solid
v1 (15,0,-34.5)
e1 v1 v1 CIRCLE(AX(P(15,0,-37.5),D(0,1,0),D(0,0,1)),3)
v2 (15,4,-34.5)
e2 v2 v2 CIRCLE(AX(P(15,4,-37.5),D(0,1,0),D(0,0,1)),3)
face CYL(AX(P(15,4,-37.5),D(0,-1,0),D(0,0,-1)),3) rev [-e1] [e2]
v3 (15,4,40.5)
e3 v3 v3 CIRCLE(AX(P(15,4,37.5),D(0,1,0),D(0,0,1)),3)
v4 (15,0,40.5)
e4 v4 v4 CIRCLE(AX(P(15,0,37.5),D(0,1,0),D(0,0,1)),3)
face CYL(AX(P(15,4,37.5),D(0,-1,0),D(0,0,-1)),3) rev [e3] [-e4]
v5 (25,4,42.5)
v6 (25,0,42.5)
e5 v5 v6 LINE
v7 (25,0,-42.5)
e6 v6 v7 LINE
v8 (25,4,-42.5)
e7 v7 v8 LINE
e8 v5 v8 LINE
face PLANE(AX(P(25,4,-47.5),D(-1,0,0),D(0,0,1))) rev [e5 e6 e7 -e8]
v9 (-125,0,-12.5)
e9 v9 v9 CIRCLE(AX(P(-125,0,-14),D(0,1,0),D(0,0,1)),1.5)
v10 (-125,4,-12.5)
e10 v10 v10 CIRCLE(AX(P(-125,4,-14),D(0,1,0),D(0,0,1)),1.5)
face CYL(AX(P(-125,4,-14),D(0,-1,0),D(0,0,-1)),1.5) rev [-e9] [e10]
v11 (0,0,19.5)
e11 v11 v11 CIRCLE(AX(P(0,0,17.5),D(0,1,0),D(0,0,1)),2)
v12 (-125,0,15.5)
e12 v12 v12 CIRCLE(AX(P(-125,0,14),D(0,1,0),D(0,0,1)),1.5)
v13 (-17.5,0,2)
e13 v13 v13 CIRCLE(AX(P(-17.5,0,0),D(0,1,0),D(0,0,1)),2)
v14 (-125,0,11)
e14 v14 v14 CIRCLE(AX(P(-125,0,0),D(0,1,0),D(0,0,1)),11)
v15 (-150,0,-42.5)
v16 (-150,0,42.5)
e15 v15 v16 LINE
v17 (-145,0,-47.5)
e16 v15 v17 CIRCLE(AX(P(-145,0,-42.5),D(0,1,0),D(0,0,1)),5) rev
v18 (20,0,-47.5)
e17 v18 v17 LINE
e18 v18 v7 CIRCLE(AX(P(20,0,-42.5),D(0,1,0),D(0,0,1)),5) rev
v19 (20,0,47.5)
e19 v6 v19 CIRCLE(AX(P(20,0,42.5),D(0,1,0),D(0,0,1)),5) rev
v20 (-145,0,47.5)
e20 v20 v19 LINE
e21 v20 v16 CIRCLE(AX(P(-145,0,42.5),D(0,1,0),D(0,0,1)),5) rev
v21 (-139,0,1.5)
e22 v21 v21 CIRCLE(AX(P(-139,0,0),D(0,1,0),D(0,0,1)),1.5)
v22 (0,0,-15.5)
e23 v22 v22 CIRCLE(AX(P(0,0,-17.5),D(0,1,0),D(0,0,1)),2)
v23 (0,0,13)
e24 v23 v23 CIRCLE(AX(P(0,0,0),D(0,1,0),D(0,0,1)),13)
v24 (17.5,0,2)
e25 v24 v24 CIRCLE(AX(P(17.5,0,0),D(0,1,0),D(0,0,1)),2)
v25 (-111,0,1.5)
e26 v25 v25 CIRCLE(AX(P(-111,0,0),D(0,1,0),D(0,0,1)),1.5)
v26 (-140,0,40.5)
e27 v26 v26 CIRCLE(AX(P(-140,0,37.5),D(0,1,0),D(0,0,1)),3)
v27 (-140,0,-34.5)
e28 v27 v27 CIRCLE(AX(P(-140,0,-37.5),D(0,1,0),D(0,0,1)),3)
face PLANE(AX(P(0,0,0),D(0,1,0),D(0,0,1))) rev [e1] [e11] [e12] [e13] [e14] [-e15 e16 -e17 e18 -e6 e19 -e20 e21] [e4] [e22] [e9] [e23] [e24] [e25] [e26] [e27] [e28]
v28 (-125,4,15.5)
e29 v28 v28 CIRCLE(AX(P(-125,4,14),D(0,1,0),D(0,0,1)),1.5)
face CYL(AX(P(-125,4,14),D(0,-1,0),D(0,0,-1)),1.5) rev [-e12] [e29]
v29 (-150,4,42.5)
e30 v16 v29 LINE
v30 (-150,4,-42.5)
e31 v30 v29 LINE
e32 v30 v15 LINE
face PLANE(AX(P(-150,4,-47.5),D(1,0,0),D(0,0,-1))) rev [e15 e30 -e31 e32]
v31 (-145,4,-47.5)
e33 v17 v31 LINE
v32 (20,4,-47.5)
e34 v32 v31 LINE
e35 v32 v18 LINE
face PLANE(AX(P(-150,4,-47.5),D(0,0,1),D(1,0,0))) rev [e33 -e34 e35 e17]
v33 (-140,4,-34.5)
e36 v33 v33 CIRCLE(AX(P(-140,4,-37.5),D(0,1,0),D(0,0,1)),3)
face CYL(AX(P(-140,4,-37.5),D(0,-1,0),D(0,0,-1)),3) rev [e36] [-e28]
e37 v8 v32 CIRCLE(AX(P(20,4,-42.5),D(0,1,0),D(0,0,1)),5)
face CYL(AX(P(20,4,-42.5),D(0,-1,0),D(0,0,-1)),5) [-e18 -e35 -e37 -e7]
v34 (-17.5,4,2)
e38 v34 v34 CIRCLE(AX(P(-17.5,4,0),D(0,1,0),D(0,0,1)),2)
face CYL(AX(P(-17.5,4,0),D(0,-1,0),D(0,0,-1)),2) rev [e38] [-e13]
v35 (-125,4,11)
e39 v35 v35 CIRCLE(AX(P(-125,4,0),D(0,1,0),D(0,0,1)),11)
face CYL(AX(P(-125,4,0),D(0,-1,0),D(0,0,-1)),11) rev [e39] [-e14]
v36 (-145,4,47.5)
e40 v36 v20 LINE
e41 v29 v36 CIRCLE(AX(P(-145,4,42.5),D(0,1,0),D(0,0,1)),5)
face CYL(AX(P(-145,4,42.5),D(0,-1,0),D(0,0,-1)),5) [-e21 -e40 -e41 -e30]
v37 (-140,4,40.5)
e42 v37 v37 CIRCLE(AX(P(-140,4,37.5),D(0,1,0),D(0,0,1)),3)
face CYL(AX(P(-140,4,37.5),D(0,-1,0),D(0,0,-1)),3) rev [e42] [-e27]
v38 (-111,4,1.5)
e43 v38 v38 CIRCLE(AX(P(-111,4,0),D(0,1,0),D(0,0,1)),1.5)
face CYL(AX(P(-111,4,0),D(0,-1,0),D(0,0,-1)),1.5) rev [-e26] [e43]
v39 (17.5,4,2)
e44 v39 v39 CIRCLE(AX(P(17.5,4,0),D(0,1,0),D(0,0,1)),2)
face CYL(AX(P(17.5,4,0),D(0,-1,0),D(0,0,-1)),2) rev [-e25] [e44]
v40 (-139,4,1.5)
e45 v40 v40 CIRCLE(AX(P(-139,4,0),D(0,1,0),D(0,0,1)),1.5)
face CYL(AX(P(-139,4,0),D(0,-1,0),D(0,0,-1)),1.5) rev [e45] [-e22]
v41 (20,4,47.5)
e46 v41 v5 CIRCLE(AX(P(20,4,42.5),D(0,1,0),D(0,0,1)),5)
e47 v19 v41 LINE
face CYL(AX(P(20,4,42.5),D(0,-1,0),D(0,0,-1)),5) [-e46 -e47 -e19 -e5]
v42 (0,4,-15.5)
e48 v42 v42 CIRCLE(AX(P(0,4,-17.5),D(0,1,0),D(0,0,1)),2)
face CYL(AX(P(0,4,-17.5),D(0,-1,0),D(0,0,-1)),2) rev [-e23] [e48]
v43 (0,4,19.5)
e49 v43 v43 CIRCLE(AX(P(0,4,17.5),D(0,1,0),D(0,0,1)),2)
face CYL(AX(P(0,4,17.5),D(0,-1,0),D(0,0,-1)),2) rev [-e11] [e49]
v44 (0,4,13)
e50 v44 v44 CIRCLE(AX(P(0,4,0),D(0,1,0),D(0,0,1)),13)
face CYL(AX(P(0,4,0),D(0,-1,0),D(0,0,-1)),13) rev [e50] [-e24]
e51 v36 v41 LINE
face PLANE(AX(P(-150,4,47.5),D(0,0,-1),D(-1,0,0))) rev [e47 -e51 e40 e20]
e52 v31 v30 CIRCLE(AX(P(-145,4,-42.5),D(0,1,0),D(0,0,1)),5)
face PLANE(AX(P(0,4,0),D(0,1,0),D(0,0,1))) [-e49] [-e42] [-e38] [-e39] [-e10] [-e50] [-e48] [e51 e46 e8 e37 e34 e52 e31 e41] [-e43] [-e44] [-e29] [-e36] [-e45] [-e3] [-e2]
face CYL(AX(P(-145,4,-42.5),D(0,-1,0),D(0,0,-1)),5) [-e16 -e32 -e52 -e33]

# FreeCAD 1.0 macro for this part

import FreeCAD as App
import Part
import Sketcher

V = App.Vector
Q = App.Units.Quantity


def edges_at(feature, points):
    """Names of the edges that pass closest to the given points."""
    edges = feature.Shape.Edges
    near = lambda p: min(range(len(edges)), key=lambda i: edges[i].distToShape(Part.Vertex(*p))[0])
    return sorted({f"Edge{near(p) + 1}" for p in points})

doc = App.newDocument("Part")
body = doc.addObject("PartDesign::Body", "Body")

# Sketch on XZ plane
sketch1 = doc.addObject("Sketcher::SketchObject", "Sketch")
body.addObject(sketch1)
sketch1.AttachmentSupport = (doc.XZ_Plane, [""])
sketch1.MapMode = "FlatFace"
sketch1.addGeometry([
    Part.LineSegment(V(-150, -47.5, 0), V(-150, 47.5, 0)),  # 0
    Part.LineSegment(V(-150, 47.5, 0), V(25, 47.5, 0)),  # 1
    Part.LineSegment(V(25, 47.5, 0), V(25, -47.5, 0)),  # 2
    Part.LineSegment(V(25, -47.5, 0), V(-150, -47.5, 0)),  # 3
    Part.Circle(V(-140, 37.5, 0), V(0, 0, 1), 3),  # 4
    Part.Circle(V(-125, 14, 0), V(0, 0, 1), 1.5),  # 5
    Part.Circle(V(15, 37.5, 0), V(0, 0, 1), 3),  # 6
    Part.Circle(V(0, 17.5, 0), V(0, 0, 1), 2),  # 7
    Part.Circle(V(-139, 0, 0), V(0, 0, 1), 1.5),  # 8
    Part.Circle(V(-125, 0, 0), V(0, 0, 1), 11),  # 9
    Part.Circle(V(-111, 0, 0), V(0, 0, 1), 1.5),  # 10
    Part.Circle(V(-125, -14, 0), V(0, 0, 1), 1.5),  # 11
    Part.Circle(V(-140, -37.5, 0), V(0, 0, 1), 3),  # 12
    Part.Circle(V(-17.5, 0, 0), V(0, 0, 1), 2),  # 13
    Part.Circle(V(0, 0, 0), V(0, 0, 1), 13),  # 14
    Part.Circle(V(17.5, 0, 0), V(0, 0, 1), 2),  # 15
    Part.Circle(V(0, -17.5, 0), V(0, 0, 1), 2),  # 16
    Part.Circle(V(15, -37.5, 0), V(0, 0, 1), 3),  # 17
], False)
sketch1.addConstraint([
    Sketcher.Constraint("Coincident", 0, 2, 1, 1),
    Sketcher.Constraint("Coincident", 1, 2, 2, 1),
    Sketcher.Constraint("Coincident", 2, 2, 3, 1),
    Sketcher.Constraint("Coincident", 3, 2, 0, 1),
    Sketcher.Constraint("Vertical", 0),
    Sketcher.Constraint("Horizontal", 1),
    Sketcher.Constraint("Vertical", 2),
    Sketcher.Constraint("Horizontal", 3),
    Sketcher.Constraint("Coincident", 14, 3, -1, 1),
    Sketcher.Constraint("Equal", 4, 6),
    Sketcher.Constraint("Equal", 5, 8),
    Sketcher.Constraint("Equal", 8, 10),
    Sketcher.Constraint("Equal", 10, 11),
    Sketcher.Constraint("Equal", 6, 12),
    Sketcher.Constraint("Equal", 7, 13),
    Sketcher.Constraint("Equal", 13, 15),
    Sketcher.Constraint("Equal", 15, 16),
    Sketcher.Constraint("Equal", 12, 17),
    Sketcher.Constraint("Symmetric", 13, 3, 15, 3, -1, 1),
    Sketcher.Constraint("Symmetric", 7, 3, 16, 3, -1, 1),
    Sketcher.Constraint("Symmetric", 5, 3, 11, 3, -1),
    Sketcher.Constraint("Symmetric", 4, 3, 12, 3, -1),
    Sketcher.Constraint("Symmetric", 6, 3, 17, 3, -1),
    Sketcher.Constraint("PointOnObject", 7, 3, -2),
    Sketcher.Constraint("PointOnObject", 8, 3, -1),
    Sketcher.Constraint("PointOnObject", 9, 3, -1),
    Sketcher.Constraint("PointOnObject", 10, 3, -1),
    Sketcher.Constraint("PointOnObject", 13, 3, -1),
    Sketcher.Constraint("Horizontal", 4, 3, 6, 3),
    Sketcher.Constraint("Vertical", 5, 3, 9, 3),
    Sketcher.Constraint("Diameter", 4, Q("6 mm")),
    Sketcher.Constraint("Diameter", 5, Q("3 mm")),
    Sketcher.Constraint("Diameter", 7, Q("4 mm")),
    Sketcher.Constraint("Diameter", 9, Q("22 mm")),
    Sketcher.Constraint("Diameter", 14, Q("26 mm")),
    Sketcher.Constraint("DistanceX", 1, 1, 1, 2, Q("175 mm")),
    Sketcher.Constraint("DistanceY", 0, 1, 0, 2, Q("95 mm")),
    Sketcher.Constraint("DistanceX", 4, 3, -1, 1, Q("140 mm")),
    Sketcher.Constraint("DistanceX", 5, 3, -1, 1, Q("125 mm")),
    Sketcher.Constraint("DistanceY", -1, 1, 5, 3, Q("14 mm")),
    Sketcher.Constraint("DistanceX", -1, 1, 6, 3, Q("15 mm")),
    Sketcher.Constraint("DistanceX", 8, 3, -1, 1, Q("139 mm")),
    Sketcher.Constraint("DistanceX", 10, 3, -1, 1, Q("111 mm")),
    Sketcher.Constraint("DistanceX", 0, 2, -1, 1, Q("150 mm")),
    Sketcher.Constraint("DistanceY", 7, 3, 6, 3, Q("20 mm")),
    Sketcher.Constraint("DistanceX", 13, 3, 15, 3, Q("35 mm")),
    Sketcher.Constraint("DistanceY", 16, 3, 7, 3, Q("35 mm")),
    Sketcher.Constraint("DistanceY", 4, 3, 0, 2, Q("10 mm")),
])
pad1 = doc.addObject("PartDesign::Pad", "Pad")
body.addObject(pad1)
pad1.Profile = sketch1
pad1.Length = 4
pad1.Reversed = True
doc.recompute()

fillet = doc.addObject("PartDesign::Fillet", "Fillet")
body.addObject(fillet)
fillet.Base = (pad1, edges_at(pad1, [
    (-150, 2, -47.5),
    (25, 2, -47.5),
    (25, 2, 47.5),
    (-150, 2, 47.5),
]))
fillet.Radius = 5

doc.recompute()
